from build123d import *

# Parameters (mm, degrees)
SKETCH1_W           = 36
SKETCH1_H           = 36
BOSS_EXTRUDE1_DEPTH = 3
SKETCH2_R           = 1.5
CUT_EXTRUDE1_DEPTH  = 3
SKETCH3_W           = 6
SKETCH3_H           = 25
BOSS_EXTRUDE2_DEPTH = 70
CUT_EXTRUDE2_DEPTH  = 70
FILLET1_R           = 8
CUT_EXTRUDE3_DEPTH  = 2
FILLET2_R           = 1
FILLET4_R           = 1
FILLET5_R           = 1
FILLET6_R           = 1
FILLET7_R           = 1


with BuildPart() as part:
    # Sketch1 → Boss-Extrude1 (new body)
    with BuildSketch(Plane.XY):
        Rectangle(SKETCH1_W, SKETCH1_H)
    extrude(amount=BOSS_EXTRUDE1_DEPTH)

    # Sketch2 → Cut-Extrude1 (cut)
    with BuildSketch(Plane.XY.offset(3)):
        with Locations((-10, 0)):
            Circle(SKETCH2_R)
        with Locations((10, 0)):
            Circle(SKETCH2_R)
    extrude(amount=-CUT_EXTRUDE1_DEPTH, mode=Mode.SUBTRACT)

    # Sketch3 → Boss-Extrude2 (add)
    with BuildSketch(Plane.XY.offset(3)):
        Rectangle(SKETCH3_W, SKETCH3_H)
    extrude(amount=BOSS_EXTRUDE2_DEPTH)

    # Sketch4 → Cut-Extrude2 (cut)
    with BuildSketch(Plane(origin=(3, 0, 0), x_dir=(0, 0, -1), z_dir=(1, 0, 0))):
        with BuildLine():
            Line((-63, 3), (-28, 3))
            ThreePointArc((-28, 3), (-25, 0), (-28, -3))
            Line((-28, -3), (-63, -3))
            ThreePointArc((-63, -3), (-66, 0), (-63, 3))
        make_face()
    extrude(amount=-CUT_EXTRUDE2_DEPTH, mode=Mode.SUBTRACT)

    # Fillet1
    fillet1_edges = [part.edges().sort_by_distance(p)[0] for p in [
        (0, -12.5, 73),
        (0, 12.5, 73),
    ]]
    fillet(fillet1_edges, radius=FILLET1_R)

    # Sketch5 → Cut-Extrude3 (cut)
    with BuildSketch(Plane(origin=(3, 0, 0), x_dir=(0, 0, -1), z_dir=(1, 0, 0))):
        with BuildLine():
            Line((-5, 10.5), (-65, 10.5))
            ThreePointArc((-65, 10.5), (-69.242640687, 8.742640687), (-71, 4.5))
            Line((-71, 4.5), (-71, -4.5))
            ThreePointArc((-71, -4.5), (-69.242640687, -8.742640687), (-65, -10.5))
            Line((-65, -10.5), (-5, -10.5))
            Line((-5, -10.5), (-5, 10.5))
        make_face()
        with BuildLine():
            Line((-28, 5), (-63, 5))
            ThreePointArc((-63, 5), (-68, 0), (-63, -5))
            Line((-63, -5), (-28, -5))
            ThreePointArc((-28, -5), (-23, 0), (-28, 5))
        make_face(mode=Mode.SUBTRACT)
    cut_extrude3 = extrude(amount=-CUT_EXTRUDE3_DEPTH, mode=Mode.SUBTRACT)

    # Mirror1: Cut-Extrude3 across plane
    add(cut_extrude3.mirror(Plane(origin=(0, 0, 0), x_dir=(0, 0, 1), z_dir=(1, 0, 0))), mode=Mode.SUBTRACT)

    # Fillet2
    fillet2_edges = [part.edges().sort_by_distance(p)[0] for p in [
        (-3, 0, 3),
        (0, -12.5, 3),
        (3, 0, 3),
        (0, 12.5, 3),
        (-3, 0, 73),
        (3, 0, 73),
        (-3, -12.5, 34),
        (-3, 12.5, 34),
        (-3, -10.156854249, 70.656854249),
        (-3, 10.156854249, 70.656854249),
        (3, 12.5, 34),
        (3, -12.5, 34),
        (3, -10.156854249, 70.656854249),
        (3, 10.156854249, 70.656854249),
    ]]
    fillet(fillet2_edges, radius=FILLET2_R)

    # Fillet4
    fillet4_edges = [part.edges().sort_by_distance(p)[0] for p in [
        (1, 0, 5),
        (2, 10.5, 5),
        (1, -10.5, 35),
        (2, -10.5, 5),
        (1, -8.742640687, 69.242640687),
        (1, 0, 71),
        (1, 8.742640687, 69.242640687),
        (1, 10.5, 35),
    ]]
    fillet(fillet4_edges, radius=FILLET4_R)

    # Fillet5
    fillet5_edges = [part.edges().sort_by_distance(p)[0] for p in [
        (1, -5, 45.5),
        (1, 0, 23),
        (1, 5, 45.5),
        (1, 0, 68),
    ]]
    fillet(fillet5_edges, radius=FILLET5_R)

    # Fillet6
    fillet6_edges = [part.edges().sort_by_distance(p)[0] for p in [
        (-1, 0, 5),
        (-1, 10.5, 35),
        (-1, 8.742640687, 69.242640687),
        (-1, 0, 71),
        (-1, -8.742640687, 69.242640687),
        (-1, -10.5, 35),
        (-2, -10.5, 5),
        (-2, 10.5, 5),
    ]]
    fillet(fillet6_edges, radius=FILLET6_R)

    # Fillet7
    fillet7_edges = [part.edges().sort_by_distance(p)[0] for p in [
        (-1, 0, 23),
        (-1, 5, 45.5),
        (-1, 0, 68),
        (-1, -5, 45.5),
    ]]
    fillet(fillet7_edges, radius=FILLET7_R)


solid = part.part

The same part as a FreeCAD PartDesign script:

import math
import FreeCAD as App
import Part
import Sketcher

V = App.Vector


def edges_at(feature, points):
    """Names of the edges that pass closest to the given points."""
    edges = feature.Shape.Edges
    near = lambda p: min(range(len(edges)), key=lambda i: edges[i].distToShape(Part.Vertex(*p))[0])
    return sorted({f"Edge{near(p) + 1}" for p in points})


def add_polygon(sketch, points):
    """Adds a closed chain of lines whose ends are joined by coincident constraints."""
    first, n = sketch.GeometryCount, len(points)
    for a, b in zip(points, points[1:] + points[:1]):
        sketch.addGeometry(Part.LineSegment(App.Vector(*a, 0), App.Vector(*b, 0)), False)
    for i in range(n):
        sketch.addConstraint(Sketcher.Constraint("Coincident", first + i, 2, first + (i + 1) % n, 1))

doc = App.newDocument("Part")
body = doc.addObject("PartDesign::Body", "Body")

# Sketch on XY plane
sketch1 = body.newObject("Sketcher::SketchObject", "Sketch")
sketch1.AttachmentSupport = (doc.getObject("XY_Plane"), [""])
sketch1.MapMode = "FlatFace"
add_polygon(sketch1, [(-18, 18), (-18, -18), (18, -18), (18, 18)])  # lines 0-3
sketch1.addConstraint([
    Sketcher.Constraint("Vertical", 0),
    Sketcher.Constraint("Horizontal", 1),
    Sketcher.Constraint("Vertical", 2),
    Sketcher.Constraint("Horizontal", 3),
    Sketcher.Constraint("Symmetric", 0, 2, 2, 2, -1, 1),
    Sketcher.Constraint("Equal", 3, 0),
    Sketcher.Constraint("DistanceX", 1, 1, 1, 2, 36.0),
])
pad1 = body.newObject("PartDesign::Pad", "Pad")
pad1.Profile = sketch1
pad1.Length = 3

# Sketch on XY plane
sketch2 = body.newObject("Sketcher::SketchObject", "Sketch001")
sketch2.AttachmentSupport = (doc.getObject("XY_Plane"), [""])
sketch2.MapMode = "FlatFace"
sketch2.AttachmentOffset = App.Placement(V(0, 0, 3), App.Rotation())
sketch2.addGeometry([
    Part.Circle(V(-10, 0, 0), V(0, 0, 1), 1.5),
    Part.Circle(V(10, 0, 0), V(0, 0, 1), 1.5),
], False)
sketch2.addConstraint([
    Sketcher.Constraint("Equal", 0, 1),
    Sketcher.Constraint("Symmetric", 0, 3, 1, 3, -1, 1),
    Sketcher.Constraint("PointOnObject", 0, 3, -1),
    Sketcher.Constraint("Diameter", 0, 3.0),
    Sketcher.Constraint("DistanceX", 0, 3, -1, 1, 10.0),
])
pocket1 = body.newObject("PartDesign::Pocket", "Pocket")
pocket1.Profile = sketch2
pocket1.Length = 3

# Sketch on XY plane
sketch3 = body.newObject("Sketcher::SketchObject", "Sketch002")
sketch3.AttachmentSupport = (doc.getObject("XY_Plane"), [""])
sketch3.MapMode = "FlatFace"
sketch3.AttachmentOffset = App.Placement(V(0, 0, 3), App.Rotation())
add_polygon(sketch3, [(-3, 12.5), (-3, -12.5), (3, -12.5), (3, 12.5)])  # lines 0-3
sketch3.addConstraint([
    Sketcher.Constraint("Vertical", 0),
    Sketcher.Constraint("Horizontal", 1),
    Sketcher.Constraint("Vertical", 2),
    Sketcher.Constraint("Horizontal", 3),
    Sketcher.Constraint("Symmetric", 0, 2, 2, 2, -1, 1),
    Sketcher.Constraint("DistanceX", 1, 1, 1, 2, 6.0),
    Sketcher.Constraint("DistanceY", 0, 2, 0, 1, 25.0),
])
pad2 = body.newObject("PartDesign::Pad", "Pad001")
pad2.Profile = sketch3
pad2.Length = 70

# Sketch on YZ plane
sketch4 = body.newObject("Sketcher::SketchObject", "Sketch003")
sketch4.AttachmentSupport = (doc.getObject("YZ_Plane"), [""])
sketch4.MapMode = "FlatFace"
sketch4.AttachmentOffset = App.Placement(V(0, 0, 3), App.Rotation())
sketch4.addGeometry([
    Part.LineSegment(V(3, 28, 0), V(3, 63, 0)),
    Part.ArcOfCircle(Part.Circle(V(0, 63, 0), V(0, 0, 1), 3), math.radians(0), math.radians(180)),
    Part.LineSegment(V(-3, 63, 0), V(-3, 28, 0)),
    Part.ArcOfCircle(Part.Circle(V(0, 28, 0), V(0, 0, 1), 3), math.radians(180), math.radians(360)),
], False)
sketch4.addConstraint([
    Sketcher.Constraint("Tangent", 0, 2, 1, 1),
    Sketcher.Constraint("Tangent", 1, 2, 2, 1),
    Sketcher.Constraint("Tangent", 2, 2, 3, 1),
    Sketcher.Constraint("Tangent", 3, 2, 0, 1),
    Sketcher.Constraint("Vertical", 0),
    Sketcher.Constraint("Vertical", 2),
    Sketcher.Constraint("PointOnObject", 1, 3, -2),
    Sketcher.Constraint("Radius", 1, 3.0),
    Sketcher.Constraint("DistanceY", 0, 1, 0, 2, 35.0),
    Sketcher.Constraint("DistanceY", -1, 1, 1, 3, 63.0),
])
pocket2 = body.newObject("PartDesign::Pocket", "Pocket001")
pocket2.Profile = sketch4
pocket2.Length = 70
doc.recompute()

fillet = body.newObject("PartDesign::Fillet", "Fillet")
fillet.Base = (pocket2, edges_at(pocket2, [(0, -12.5, 73), (0, 12.5, 73)]))
fillet.Radius = 8

# Sketch on YZ plane
sketch5 = body.newObject("Sketcher::SketchObject", "Sketch004")
sketch5.AttachmentSupport = (doc.getObject("YZ_Plane"), [""])
sketch5.MapMode = "FlatFace"
sketch5.AttachmentOffset = App.Placement(V(0, 0, 3), App.Rotation())
sketch5.addGeometry([
    Part.LineSegment(V(10.5, 5, 0), V(10.5, 65, 0)),  # 0
    Part.ArcOfCircle(Part.Circle(V(4.5, 65, 0), V(0, 0, 1), 6), math.radians(0), math.radians(90)),  # 1
    Part.LineSegment(V(4.5, 71, 0), V(-4.5, 71, 0)),  # 2
    Part.ArcOfCircle(Part.Circle(V(-4.5, 65, 0), V(0, 0, 1), 6), math.radians(90), math.radians(180)),  # 3
    Part.LineSegment(V(-10.5, 65, 0), V(-10.5, 5, 0)),  # 4
    Part.LineSegment(V(-10.5, 5, 0), V(10.5, 5, 0)),  # 5
    Part.LineSegment(V(5, 63, 0), V(5, 28, 0)),  # 6
    Part.ArcOfCircle(Part.Circle(V(0, 28, 0), V(0, 0, 1), 5), math.radians(180), math.radians(360)),  # 7
    Part.LineSegment(V(-5, 28, 0), V(-5, 63, 0)),  # 8
    Part.ArcOfCircle(Part.Circle(V(0, 63, 0), V(0, 0, 1), 5), math.radians(0), math.radians(180)),  # 9
], False)
sketch5.addConstraint([
    Sketcher.Constraint("Tangent", 0, 2, 1, 1),
    Sketcher.Constraint("Tangent", 1, 2, 2, 1),
    Sketcher.Constraint("Tangent", 2, 2, 3, 1),
    Sketcher.Constraint("Tangent", 3, 2, 4, 1),
    Sketcher.Constraint("Coincident", 4, 2, 5, 1),
    Sketcher.Constraint("Coincident", 5, 2, 0, 1),
    Sketcher.Constraint("Tangent", 6, 2, 7, 2),
    Sketcher.Constraint("Tangent", 7, 1, 8, 1),
    Sketcher.Constraint("Tangent", 8, 2, 9, 2),
    Sketcher.Constraint("Tangent", 9, 1, 6, 1),
    Sketcher.Constraint("Vertical", 0),
    Sketcher.Constraint("Horizontal", 2),
    Sketcher.Constraint("Vertical", 4),
    Sketcher.Constraint("Horizontal", 5),
    Sketcher.Constraint("Vertical", 6),
    Sketcher.Constraint("Vertical", 8),
    Sketcher.Constraint("Equal", 1, 3),
    Sketcher.Constraint("PointOnObject", 7, 3, -2),
    Sketcher.Constraint("Radius", 1, 6.0),
    Sketcher.Constraint("Radius", 7, 5.0),
    Sketcher.Constraint("DistanceX", 2, 2, 2, 1, 9.0),
    Sketcher.Constraint("DistanceY", 0, 1, 0, 2, 60.0),
    Sketcher.Constraint("DistanceY", 6, 2, 6, 1, 35.0),
    Sketcher.Constraint("DistanceY", -1, 1, 1, 3, 65.0),
    Sketcher.Constraint("DistanceY", -1, 1, 7, 3, 28.0),
    Sketcher.Constraint("DistanceX", -1, 1, 1, 3, 4.5),
])
pocket3 = body.newObject("PartDesign::Pocket", "Pocket002")
pocket3.Profile = sketch5
pocket3.Length = 2
doc.recompute()

mirrored = body.newObject("PartDesign::Mirrored", "Mirrored")
mirrored.Originals = [pocket3]
mirrored.MirrorPlane = (doc.getObject("YZ_Plane"), [""])
body.Tip = mirrored
doc.recompute()

fillet2 = body.newObject("PartDesign::Fillet", "Fillet001")
fillet2.Base = (mirrored, edges_at(mirrored, [
    (-3, 0, 3),
    (0, -12.5, 3),
    (3, 0, 3),
    (0, 12.5, 3),
    (-3, 0, 73),
    (3, 0, 73),
    (-3, -12.5, 34),
    (-3, 12.5, 34),
    (-3, -10.157, 70.657),
    (-3, 10.157, 70.657),
    (3, 12.5, 34),
    (3, -12.5, 34),
    (3, -10.157, 70.657),
    (3, 10.157, 70.657),
]))
fillet2.Radius = 1
doc.recompute()

fillet3 = body.newObject("PartDesign::Fillet", "Fillet002")
fillet3.Base = (fillet2, edges_at(fillet2, [
    (1, 0, 5),
    (2, 10.5, 5),
    (1, -10.5, 35),
    (2, -10.5, 5),
    (1, -8.743, 69.243),
    (1, 0, 71),
    (1, 8.743, 69.243),
    (1, 10.5, 35),
]))
fillet3.Radius = 1
doc.recompute()

fillet4 = body.newObject("PartDesign::Fillet", "Fillet003")
fillet4.Base = (fillet3, edges_at(fillet3, [
    (1, -5, 45.5),
    (1, 0, 23),
    (1, 5, 45.5),
    (1, 0, 68),
]))
fillet4.Radius = 1
doc.recompute()

fillet5 = body.newObject("PartDesign::Fillet", "Fillet004")
fillet5.Base = (fillet4, edges_at(fillet4, [
    (-1, 0, 5),
    (-1, 10.5, 35),
    (-1, 8.743, 69.243),
    (-1, 0, 71),
    (-1, -8.743, 69.243),
    (-1, -10.5, 35),
    (-2, -10.5, 5),
    (-2, 10.5, 5),
]))
fillet5.Radius = 1
doc.recompute()

fillet6 = body.newObject("PartDesign::Fillet", "Fillet005")
fillet6.Base = (fillet5, edges_at(fillet5, [
    (-1, 0, 23),
    (-1, 5, 45.5),
    (-1, 0, 68),
    (-1, -5, 45.5),
]))
fillet6.Radius = 1

doc.recompute()
